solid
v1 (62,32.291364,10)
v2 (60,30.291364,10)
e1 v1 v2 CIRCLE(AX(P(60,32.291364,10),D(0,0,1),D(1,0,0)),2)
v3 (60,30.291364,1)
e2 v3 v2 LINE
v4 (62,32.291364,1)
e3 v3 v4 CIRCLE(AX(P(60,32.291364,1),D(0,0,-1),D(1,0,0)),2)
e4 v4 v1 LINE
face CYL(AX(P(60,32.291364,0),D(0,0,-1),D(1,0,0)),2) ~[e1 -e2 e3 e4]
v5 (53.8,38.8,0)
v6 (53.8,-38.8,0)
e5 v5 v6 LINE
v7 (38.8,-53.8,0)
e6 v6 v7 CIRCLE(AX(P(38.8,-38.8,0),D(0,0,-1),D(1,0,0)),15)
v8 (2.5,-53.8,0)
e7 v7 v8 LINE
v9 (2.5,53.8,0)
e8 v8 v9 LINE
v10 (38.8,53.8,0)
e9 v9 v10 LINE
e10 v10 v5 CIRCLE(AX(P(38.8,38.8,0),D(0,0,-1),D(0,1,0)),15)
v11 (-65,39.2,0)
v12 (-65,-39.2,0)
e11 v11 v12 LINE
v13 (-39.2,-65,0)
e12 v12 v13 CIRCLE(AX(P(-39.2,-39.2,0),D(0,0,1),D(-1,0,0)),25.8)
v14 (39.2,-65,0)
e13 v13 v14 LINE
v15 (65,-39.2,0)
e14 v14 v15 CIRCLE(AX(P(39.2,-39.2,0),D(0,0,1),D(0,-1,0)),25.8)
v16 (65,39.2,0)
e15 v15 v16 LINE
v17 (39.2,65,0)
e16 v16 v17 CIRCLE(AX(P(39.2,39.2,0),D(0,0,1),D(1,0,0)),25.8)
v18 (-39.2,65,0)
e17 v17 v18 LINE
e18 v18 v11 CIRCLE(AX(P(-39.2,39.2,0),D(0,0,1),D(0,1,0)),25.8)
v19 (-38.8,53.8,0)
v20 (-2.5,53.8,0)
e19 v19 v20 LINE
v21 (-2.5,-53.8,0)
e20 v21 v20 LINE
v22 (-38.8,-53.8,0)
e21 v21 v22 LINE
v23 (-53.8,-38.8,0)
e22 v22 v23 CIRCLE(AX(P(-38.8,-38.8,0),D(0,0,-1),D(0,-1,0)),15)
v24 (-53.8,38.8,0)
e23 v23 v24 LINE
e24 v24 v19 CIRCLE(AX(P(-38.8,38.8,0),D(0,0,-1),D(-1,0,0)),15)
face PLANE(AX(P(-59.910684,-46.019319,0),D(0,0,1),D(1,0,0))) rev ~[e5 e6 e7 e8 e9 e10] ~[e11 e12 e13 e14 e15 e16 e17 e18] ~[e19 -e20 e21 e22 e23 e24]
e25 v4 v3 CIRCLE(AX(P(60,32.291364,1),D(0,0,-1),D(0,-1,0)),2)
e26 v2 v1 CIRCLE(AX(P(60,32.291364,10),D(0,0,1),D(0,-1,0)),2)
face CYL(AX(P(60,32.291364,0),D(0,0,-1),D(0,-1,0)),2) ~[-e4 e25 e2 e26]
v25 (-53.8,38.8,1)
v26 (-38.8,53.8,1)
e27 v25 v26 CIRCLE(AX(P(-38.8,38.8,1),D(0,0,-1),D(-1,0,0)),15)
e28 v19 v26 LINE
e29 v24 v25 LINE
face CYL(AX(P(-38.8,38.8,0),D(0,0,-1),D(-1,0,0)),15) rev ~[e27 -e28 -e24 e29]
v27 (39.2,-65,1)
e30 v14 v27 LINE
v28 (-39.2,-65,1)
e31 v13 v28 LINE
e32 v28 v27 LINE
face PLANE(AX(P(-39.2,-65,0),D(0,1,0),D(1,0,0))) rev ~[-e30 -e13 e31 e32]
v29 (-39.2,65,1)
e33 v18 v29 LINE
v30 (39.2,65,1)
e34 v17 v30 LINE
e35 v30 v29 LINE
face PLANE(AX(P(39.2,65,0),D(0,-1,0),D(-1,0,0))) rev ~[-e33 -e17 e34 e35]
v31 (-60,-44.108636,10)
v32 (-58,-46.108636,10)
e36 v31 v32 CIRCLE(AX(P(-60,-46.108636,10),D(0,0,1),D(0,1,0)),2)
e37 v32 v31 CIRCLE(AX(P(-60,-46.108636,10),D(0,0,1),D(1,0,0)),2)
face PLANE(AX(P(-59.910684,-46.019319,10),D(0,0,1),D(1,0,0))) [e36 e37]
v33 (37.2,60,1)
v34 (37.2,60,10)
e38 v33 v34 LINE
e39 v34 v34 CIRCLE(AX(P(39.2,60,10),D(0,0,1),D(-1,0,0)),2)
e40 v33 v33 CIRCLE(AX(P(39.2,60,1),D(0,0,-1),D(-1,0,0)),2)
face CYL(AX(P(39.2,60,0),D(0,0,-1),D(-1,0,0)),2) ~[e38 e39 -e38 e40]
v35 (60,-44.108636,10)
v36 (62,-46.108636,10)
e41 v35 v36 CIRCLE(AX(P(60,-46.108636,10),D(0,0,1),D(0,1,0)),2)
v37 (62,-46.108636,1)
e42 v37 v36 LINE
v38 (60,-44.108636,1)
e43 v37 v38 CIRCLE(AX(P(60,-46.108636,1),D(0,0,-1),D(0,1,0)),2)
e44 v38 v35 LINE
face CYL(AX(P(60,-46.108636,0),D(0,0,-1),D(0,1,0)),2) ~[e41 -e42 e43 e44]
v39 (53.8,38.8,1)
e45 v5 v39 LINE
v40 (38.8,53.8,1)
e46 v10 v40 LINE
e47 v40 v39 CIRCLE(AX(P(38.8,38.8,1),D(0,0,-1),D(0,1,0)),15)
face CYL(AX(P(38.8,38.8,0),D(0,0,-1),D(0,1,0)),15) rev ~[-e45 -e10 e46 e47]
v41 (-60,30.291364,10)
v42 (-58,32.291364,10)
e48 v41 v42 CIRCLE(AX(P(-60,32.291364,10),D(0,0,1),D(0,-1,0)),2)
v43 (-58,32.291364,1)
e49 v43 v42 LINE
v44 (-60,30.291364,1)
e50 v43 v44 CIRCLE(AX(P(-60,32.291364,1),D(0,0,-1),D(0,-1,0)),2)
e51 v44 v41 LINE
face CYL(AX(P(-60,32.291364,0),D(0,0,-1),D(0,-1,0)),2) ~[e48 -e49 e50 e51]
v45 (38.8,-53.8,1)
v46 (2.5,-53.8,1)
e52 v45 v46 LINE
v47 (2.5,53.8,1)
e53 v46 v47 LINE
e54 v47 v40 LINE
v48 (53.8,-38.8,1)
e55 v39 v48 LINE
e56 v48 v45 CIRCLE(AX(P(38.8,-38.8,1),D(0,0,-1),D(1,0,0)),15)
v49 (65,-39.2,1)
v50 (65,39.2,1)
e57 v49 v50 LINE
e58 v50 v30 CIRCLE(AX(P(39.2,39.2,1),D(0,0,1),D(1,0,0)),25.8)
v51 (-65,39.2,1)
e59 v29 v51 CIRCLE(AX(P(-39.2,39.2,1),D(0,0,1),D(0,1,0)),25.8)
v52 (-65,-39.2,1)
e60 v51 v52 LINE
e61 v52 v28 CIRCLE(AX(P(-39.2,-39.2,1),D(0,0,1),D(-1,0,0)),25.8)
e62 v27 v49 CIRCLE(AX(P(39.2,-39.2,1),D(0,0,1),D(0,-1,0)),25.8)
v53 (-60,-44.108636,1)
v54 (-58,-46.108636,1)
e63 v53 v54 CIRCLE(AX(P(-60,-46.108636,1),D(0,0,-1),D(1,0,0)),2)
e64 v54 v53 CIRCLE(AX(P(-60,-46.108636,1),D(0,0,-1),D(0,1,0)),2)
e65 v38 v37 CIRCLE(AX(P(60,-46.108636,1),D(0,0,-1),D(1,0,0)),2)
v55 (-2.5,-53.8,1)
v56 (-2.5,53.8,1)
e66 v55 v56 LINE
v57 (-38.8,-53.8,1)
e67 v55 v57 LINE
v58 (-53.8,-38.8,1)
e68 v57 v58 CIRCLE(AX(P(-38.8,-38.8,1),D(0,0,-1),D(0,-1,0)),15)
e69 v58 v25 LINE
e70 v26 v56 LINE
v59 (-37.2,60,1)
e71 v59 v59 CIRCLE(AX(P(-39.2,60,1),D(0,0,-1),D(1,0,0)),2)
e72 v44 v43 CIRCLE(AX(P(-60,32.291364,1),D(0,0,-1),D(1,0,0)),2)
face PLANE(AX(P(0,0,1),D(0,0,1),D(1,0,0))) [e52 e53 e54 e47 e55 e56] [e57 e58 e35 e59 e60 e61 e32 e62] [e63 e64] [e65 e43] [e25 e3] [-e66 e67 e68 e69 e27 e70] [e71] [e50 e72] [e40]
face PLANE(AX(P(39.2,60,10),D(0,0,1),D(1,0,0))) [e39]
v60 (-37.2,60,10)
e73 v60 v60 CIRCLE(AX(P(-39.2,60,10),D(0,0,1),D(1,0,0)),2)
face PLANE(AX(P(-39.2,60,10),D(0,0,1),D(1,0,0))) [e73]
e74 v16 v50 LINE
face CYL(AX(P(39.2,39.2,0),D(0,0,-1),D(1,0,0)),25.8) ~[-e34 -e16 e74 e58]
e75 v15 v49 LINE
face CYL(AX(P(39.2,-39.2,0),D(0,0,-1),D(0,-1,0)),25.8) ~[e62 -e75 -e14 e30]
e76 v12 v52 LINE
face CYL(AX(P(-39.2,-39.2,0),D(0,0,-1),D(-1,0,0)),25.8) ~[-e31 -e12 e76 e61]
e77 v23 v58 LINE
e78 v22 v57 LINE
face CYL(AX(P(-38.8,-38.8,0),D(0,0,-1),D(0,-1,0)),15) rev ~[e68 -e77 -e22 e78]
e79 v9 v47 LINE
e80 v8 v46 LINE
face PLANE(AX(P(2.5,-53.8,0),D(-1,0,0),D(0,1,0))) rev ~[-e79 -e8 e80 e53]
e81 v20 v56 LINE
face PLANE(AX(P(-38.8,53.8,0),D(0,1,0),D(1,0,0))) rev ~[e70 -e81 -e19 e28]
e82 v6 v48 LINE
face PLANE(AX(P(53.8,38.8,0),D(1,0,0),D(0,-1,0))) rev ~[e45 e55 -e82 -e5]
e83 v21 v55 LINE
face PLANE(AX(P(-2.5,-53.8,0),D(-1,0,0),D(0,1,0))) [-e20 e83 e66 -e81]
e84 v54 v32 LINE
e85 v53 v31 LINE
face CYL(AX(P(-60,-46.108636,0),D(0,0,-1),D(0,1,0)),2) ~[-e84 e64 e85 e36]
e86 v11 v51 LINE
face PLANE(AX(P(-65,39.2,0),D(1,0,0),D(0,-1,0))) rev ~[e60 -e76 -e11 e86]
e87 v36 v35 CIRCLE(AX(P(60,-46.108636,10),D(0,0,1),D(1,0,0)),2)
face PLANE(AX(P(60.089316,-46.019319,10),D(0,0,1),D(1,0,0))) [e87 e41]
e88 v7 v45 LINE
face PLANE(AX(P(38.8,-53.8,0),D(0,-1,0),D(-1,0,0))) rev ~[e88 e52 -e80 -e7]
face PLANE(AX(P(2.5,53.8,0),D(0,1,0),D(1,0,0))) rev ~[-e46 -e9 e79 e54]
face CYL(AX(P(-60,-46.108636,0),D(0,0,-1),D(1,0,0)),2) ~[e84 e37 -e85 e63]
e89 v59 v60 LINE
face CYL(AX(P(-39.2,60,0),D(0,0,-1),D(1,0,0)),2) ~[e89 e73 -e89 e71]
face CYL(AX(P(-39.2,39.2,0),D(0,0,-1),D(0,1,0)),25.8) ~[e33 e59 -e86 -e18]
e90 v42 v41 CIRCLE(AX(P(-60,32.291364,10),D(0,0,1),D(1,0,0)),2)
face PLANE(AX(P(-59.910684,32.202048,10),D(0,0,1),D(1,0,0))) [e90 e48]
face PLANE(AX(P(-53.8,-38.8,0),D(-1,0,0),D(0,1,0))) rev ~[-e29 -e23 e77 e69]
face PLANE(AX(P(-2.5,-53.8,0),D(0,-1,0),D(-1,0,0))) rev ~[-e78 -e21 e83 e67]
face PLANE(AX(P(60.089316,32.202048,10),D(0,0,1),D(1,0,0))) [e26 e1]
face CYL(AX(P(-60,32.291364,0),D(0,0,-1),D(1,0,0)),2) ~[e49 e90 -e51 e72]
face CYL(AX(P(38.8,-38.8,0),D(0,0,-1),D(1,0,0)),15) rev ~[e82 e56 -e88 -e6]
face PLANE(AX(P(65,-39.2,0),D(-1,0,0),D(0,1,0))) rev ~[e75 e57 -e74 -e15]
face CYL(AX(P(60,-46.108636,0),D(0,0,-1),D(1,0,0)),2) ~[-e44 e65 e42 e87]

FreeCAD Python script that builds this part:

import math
import FreeCAD as App
import Part
import Sketcher
from FreeCAD import Vector
Q = App.Units.Quantity

doc = App.newDocument("Part")
body = doc.addObject("PartDesign::Body", "Body")

# Sketch on XY plane
sketch1 = body.newObject("Sketcher::SketchObject", "Sketch")
sketch1.AttachmentSupport = (doc.getObject("XY_Plane"), [""])
sketch1.MapMode = "FlatFace"
sketch1.addGeometry([
    Part.ArcOfCircle(Part.Circle(Vector(39.2, 39.2, 0), Vector(0, 0, 1), 25.8), math.radians(0), math.radians(90)),  # 0
    Part.LineSegment(Vector(39.2, 65, 0), Vector(-39.2, 65, 0)),  # 1
    Part.ArcOfCircle(Part.Circle(Vector(-39.2, 39.2, 0), Vector(0, 0, 1), 25.8), math.radians(90), math.radians(180)),  # 2
    Part.LineSegment(Vector(-65, 39.2, 0), Vector(-65, -39.2, 0)),  # 3
    Part.ArcOfCircle(Part.Circle(Vector(-39.2, -39.2, 0), Vector(0, 0, 1), 25.8), math.radians(180), math.radians(270)),  # 4
    Part.LineSegment(Vector(-39.2, -65, 0), Vector(39.2, -65, 0)),  # 5
    Part.ArcOfCircle(Part.Circle(Vector(39.2, -39.2, 0), Vector(0, 0, 1), 25.8), math.radians(-90), math.radians(0)),  # 6
    Part.LineSegment(Vector(65, -39.2, 0), Vector(65, 39.2, 0)),  # 7
    Part.LineSegment(Vector(-2.5, 53.8, 0), Vector(-2.5, -53.8, 0)),  # 8
    Part.LineSegment(Vector(-2.5, -53.8, 0), Vector(-38.8, -53.8, 0)),  # 9
    Part.ArcOfCircle(Part.Circle(Vector(-38.8, -38.8, 0), Vector(0, 0, 1), 15), math.radians(180), math.radians(270)),  # 10
    Part.LineSegment(Vector(-53.8, -38.8, 0), Vector(-53.8, 38.8, 0)),  # 11
    Part.ArcOfCircle(Part.Circle(Vector(-38.8, 38.8, 0), Vector(0, 0, 1), 15), math.radians(90), math.radians(180)),  # 12
    Part.LineSegment(Vector(-38.8, 53.8, 0), Vector(-2.5, 53.8, 0)),  # 13
    Part.LineSegment(Vector(2.5, -53.8, 0), Vector(2.5, 53.8, 0)),  # 14
    Part.LineSegment(Vector(2.5, 53.8, 0), Vector(38.8, 53.8, 0)),  # 15
    Part.ArcOfCircle(Part.Circle(Vector(38.8, 38.8, 0), Vector(0, 0, 1), 15), math.radians(0), math.radians(90)),  # 16
    Part.LineSegment(Vector(53.8, 38.8, 0), Vector(53.8, -38.8, 0)),  # 17
    Part.ArcOfCircle(Part.Circle(Vector(38.8, -38.8, 0), Vector(0, 0, 1), 15), math.radians(-90), math.radians(0)),  # 18
    Part.LineSegment(Vector(38.8, -53.8, 0), Vector(2.5, -53.8, 0)),  # 19
], False)
sketch1.addConstraint([
    Sketcher.Constraint("Tangent", 0, 2, 1, 1),
    Sketcher.Constraint("Tangent", 1, 2, 2, 1),
    Sketcher.Constraint("Tangent", 2, 2, 3, 1),
    Sketcher.Constraint("Tangent", 3, 2, 4, 1),
    Sketcher.Constraint("Tangent", 4, 2, 5, 1),
    Sketcher.Constraint("Tangent", 5, 2, 6, 1),
    Sketcher.Constraint("Tangent", 6, 2, 7, 1),
    Sketcher.Constraint("Tangent", 7, 2, 0, 1),
    Sketcher.Constraint("Coincident", 8, 2, 9, 1),
    Sketcher.Constraint("Tangent", 9, 2, 10, 2),
    Sketcher.Constraint("Tangent", 10, 1, 11, 1),
    Sketcher.Constraint("Tangent", 11, 2, 12, 2),
    Sketcher.Constraint("Tangent", 12, 1, 13, 1),
    Sketcher.Constraint("Coincident", 13, 2, 8, 1),
    Sketcher.Constraint("Coincident", 14, 2, 15, 1),
    Sketcher.Constraint("Tangent", 15, 2, 16, 2),
    Sketcher.Constraint("Tangent", 16, 1, 17, 1),
    Sketcher.Constraint("Tangent", 17, 2, 18, 2),
    Sketcher.Constraint("Tangent", 18, 1, 19, 1),
    Sketcher.Constraint("Coincident", 19, 2, 14, 1),
    Sketcher.Constraint("Horizontal", 1),
    Sketcher.Constraint("Vertical", 3),
    Sketcher.Constraint("Horizontal", 5),
    Sketcher.Constraint("Vertical", 7),
    Sketcher.Constraint("Vertical", 8),
    Sketcher.Constraint("Horizontal", 9),
    Sketcher.Constraint("Vertical", 11),
    Sketcher.Constraint("Horizontal", 13),
    Sketcher.Constraint("Vertical", 14),
    Sketcher.Constraint("Horizontal", 15),
    Sketcher.Constraint("Vertical", 17),
    Sketcher.Constraint("Horizontal", 19),
    Sketcher.Constraint("Equal", 0, 2),
    Sketcher.Constraint("Equal", 2, 4),
    Sketcher.Constraint("Equal", 4, 6),
    Sketcher.Constraint("Equal", 10, 12),
    Sketcher.Constraint("Equal", 12, 16),
    Sketcher.Constraint("Equal", 16, 18),
    Sketcher.Constraint("Symmetric", 0, 3, 4, 3, -1, 1),
    Sketcher.Constraint("Symmetric", 10, 3, 16, 3, -1, 1),
    Sketcher.Constraint("Symmetric", 13, 2, 19, 2, -1, 1),
    Sketcher.Constraint("Horizontal", 12, 3, 16, 3),
    Sketcher.Constraint("Equal", 5, 3),
    Sketcher.Constraint("Radius", 10, Q("15 mm")),
    Sketcher.Constraint("Radius", 0, Q("25.8 mm")),
    Sketcher.Constraint("DistanceX", 1, 2, 1, 1, Q("78.4 mm")),
    Sketcher.Constraint("DistanceX", 9, 2, 9, 1, Q("36.3 mm")),
    Sketcher.Constraint("DistanceY", 8, 2, 8, 1, Q("107.6 mm")),
    Sketcher.Constraint("DistanceX", 10, 3, 6, 3, Q("78 mm")),
])
pad1 = body.newObject("PartDesign::Pad", "Pad")
pad1.Profile = sketch1
pad1.Length = 1

# Sketch on XY plane
sketch2 = body.newObject("Sketcher::SketchObject", "Sketch001")
sketch2.AttachmentSupport = (doc.getObject("XY_Plane"), [""])
sketch2.MapMode = "FlatFace"
sketch2.addGeometry([
    Part.ArcOfCircle(Part.Circle(Vector(-60, -46.108636, 0), Vector(0, 0, 1), 2), math.radians(0), math.radians(90)),  # 0
    Part.ArcOfCircle(Part.Circle(Vector(-60, -46.108636, 0), Vector(0, 0, 1), 2), math.radians(90), math.radians(360)),  # 1
    Part.ArcOfCircle(Part.Circle(Vector(-60, 32.291364, 0), Vector(0, 0, 1), 2), math.radians(0), math.radians(270)),  # 2
    Part.ArcOfCircle(Part.Circle(Vector(-60, 32.291364, 0), Vector(0, 0, 1), 2), math.radians(-90), math.radians(0)),  # 3
    Part.Circle(Vector(39.2, 60, 0), Vector(0, 0, 1), 2),  # 4
    Part.Circle(Vector(-39.2, 60, 0), Vector(0, 0, 1), 2),  # 5
    Part.ArcOfCircle(Part.Circle(Vector(60, -46.108636, 0), Vector(0, 0, 1), 2), math.radians(0), math.radians(90)),  # 6
    Part.ArcOfCircle(Part.Circle(Vector(60, -46.108636, 0), Vector(0, 0, 1), 2), math.radians(90), math.radians(360)),  # 7
    Part.ArcOfCircle(Part.Circle(Vector(60, 32.291364, 0), Vector(0, 0, 1), 2), math.radians(0), math.radians(270)),  # 8
    Part.ArcOfCircle(Part.Circle(Vector(60, 32.291364, 0), Vector(0, 0, 1), 2), math.radians(-90), math.radians(0)),  # 9
], False)
sketch2.addConstraint([
    Sketcher.Constraint("Tangent", 0, 1, 1, 2),
    Sketcher.Constraint("Coincident", 1, 1, 0, 2),
    Sketcher.Constraint("Tangent", 2, 1, 3, 2),
    Sketcher.Constraint("Coincident", 3, 1, 2, 2),
    Sketcher.Constraint("Tangent", 6, 1, 7, 2),
    Sketcher.Constraint("Coincident", 7, 1, 6, 2),
    Sketcher.Constraint("Tangent", 8, 1, 9, 2),
    Sketcher.Constraint("Coincident", 9, 1, 8, 2),
    Sketcher.Constraint("Equal", 1, 2),
    Sketcher.Constraint("Equal", 3, 4),
    Sketcher.Constraint("Equal", 4, 5),
    Sketcher.Constraint("Equal", 5, 6),
    Sketcher.Constraint("Equal", 7, 8),
    Sketcher.Constraint("Symmetric", 4, 3, 5, 3, -2),
    Sketcher.Constraint("Symmetric", 0, 3, 6, 3, -2),
    Sketcher.Constraint("Symmetric", 2, 3, 8, 3, -2),
    Sketcher.Constraint("Horizontal", 7, 3, 0, 1),
    Sketcher.Constraint("Horizontal", 9, 3, 2, 1),
    Sketcher.Constraint("Horizontal", 0, 1, 6, 1),
    Sketcher.Constraint("Horizontal", 2, 1, 8, 1),
    Sketcher.Constraint("Vertical", 1, 3, 2, 3),
    Sketcher.Constraint("Vertical", 3, 3, 1, 1),
    Sketcher.Constraint("Vertical", 1, 1, 3, 1),
    Sketcher.Constraint("Vertical", 9, 3, 7, 1),
    Sketcher.Constraint("Vertical", 7, 1, 9, 1),
    Sketcher.Constraint("Diameter", 4, Q("4 mm")),
    Sketcher.Constraint("DistanceX", 0, 3, -1, 1, Q("60 mm")),
    Sketcher.Constraint("DistanceY", -1, 1, 4, 3, Q("60 mm")),
    Sketcher.Constraint("DistanceX", -1, 1, 4, 3, Q("39.2 mm")),
    Sketcher.Constraint("DistanceY", 0, 3, 2, 3, Q("78.4 mm")),
    Sketcher.Constraint("DistanceY", 0, 3, -1, 1, Q("46.108636 mm")),
])
pad2 = body.newObject("PartDesign::Pad", "Pad001")
pad2.Profile = sketch2
pad2.Length = 10

doc.recompute()
